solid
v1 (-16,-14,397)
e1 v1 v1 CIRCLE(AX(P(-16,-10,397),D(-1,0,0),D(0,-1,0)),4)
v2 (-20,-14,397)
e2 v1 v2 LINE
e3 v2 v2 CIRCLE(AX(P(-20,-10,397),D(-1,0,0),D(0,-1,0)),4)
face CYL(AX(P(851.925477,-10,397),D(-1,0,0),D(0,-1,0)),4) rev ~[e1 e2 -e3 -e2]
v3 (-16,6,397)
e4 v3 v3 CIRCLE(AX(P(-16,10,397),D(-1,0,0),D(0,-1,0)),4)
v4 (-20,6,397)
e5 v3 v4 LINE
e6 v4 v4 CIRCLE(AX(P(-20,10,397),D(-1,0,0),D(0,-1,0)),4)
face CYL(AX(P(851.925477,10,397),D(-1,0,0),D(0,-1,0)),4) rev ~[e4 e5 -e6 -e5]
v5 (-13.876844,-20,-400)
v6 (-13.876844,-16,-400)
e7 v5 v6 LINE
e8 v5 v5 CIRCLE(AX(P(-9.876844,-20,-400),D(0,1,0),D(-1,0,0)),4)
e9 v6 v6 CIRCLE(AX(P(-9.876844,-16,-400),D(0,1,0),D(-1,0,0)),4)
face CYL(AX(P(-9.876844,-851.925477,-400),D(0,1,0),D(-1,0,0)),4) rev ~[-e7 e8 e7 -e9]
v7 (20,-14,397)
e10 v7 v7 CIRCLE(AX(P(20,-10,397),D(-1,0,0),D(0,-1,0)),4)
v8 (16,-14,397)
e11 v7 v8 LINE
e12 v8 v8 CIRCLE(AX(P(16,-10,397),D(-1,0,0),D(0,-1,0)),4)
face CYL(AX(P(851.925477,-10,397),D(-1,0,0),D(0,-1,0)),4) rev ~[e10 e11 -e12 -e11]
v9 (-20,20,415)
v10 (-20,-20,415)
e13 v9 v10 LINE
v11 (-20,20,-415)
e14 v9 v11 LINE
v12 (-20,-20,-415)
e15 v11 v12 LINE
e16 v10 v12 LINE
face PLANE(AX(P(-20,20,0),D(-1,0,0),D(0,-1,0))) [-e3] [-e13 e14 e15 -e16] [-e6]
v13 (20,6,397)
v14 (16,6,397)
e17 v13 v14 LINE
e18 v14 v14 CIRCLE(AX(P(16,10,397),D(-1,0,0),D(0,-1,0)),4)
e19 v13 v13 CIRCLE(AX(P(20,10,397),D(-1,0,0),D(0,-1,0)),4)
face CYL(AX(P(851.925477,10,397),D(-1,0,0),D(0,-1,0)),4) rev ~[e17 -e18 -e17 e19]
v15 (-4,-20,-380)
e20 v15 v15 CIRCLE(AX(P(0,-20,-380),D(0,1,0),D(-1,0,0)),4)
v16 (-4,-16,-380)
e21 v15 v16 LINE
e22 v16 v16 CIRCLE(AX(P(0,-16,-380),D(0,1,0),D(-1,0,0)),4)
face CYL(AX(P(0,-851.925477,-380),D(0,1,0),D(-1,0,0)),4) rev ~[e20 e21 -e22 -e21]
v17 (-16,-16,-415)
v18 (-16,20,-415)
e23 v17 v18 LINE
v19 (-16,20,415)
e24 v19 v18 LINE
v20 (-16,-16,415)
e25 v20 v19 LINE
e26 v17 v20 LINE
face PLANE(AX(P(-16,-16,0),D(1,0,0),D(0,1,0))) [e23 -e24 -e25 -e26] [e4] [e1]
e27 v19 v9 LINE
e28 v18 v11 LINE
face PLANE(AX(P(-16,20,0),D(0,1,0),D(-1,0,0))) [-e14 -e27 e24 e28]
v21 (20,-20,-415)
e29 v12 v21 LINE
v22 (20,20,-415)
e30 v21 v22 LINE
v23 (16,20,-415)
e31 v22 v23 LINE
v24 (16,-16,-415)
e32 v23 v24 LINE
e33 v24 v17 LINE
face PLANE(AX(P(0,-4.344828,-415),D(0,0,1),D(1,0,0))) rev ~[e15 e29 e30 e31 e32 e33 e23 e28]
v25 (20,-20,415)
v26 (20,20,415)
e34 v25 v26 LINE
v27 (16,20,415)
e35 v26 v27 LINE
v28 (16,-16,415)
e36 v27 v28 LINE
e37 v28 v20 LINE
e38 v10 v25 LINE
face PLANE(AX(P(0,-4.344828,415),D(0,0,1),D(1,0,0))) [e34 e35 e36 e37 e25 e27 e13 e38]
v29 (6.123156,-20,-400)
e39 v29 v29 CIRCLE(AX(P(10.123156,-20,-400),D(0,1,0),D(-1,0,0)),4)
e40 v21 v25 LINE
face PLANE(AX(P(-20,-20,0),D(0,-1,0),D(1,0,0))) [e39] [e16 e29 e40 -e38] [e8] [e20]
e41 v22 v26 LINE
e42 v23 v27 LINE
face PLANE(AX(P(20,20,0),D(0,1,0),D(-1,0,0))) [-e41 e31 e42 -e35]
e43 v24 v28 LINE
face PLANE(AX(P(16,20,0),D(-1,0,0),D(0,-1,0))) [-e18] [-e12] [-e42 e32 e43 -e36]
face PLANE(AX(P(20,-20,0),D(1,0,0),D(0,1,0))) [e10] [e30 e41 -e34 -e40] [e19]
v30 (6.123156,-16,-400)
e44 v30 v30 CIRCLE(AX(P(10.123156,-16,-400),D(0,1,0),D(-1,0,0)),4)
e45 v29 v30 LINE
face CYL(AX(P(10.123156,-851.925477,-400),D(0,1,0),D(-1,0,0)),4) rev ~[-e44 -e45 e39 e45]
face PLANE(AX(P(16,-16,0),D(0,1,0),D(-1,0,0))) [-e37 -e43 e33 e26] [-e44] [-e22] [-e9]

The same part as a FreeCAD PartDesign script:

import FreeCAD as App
import Part
import Sketcher
from FreeCAD import Vector

doc = App.newDocument("Part")
body = doc.addObject("PartDesign::Body", "Body")

sketch1 = doc.addObject("Sketcher::SketchObject", "Sketch")
body.addObject(sketch1)
sketch1.AttachmentSupport = (doc.XY_Plane, [""])
sketch1.MapMode = "FlatFace"
sketch1.addGeometry([
    Part.LineSegment(Vector(-20, -20, 0), Vector(20, -20, 0)),
    Part.LineSegment(Vector(20, -20, 0), Vector(20, 20, 0)),
    Part.LineSegment(Vector(20, 20, 0), Vector(16, 20, 0)),
    Part.LineSegment(Vector(16, 20, 0), Vector(16, -16, 0)),
    Part.LineSegment(Vector(16, -16, 0), Vector(-16, -16, 0)),
    Part.LineSegment(Vector(-16, -16, 0), Vector(-16, 20, 0)),
    Part.LineSegment(Vector(-16, 20, 0), Vector(-20, 20, 0)),
    Part.LineSegment(Vector(-20, 20, 0), Vector(-20, -20, 0)),
], False)
sketch1.addConstraint([
    Sketcher.Constraint("Coincident", 0, 2, 1, 1),
    Sketcher.Constraint("Coincident", 1, 2, 2, 1),
    Sketcher.Constraint("Coincident", 2, 2, 3, 1),
    Sketcher.Constraint("Coincident", 3, 2, 4, 1),
    Sketcher.Constraint("Coincident", 4, 2, 5, 1),
    Sketcher.Constraint("Coincident", 5, 2, 6, 1),
    Sketcher.Constraint("Coincident", 6, 2, 7, 1),
    Sketcher.Constraint("Coincident", 7, 2, 0, 1),
    Sketcher.Constraint("Horizontal", 0),
    Sketcher.Constraint("Vertical", 1),
    Sketcher.Constraint("Horizontal", 2),
    Sketcher.Constraint("Vertical", 3),
    Sketcher.Constraint("Horizontal", 4),
    Sketcher.Constraint("Vertical", 5),
    Sketcher.Constraint("Horizontal", 6),
    Sketcher.Constraint("Vertical", 7),
    Sketcher.Constraint("Symmetric", 0, 2, 6, 2, -1, 1),
    Sketcher.Constraint("Symmetric", 2, 2, 5, 2, -2),
    Sketcher.Constraint("Equal", 0, 1),
    Sketcher.Constraint("DistanceX", 0, 1, 0, 2, 40.0),
    Sketcher.Constraint("DistanceX", 2, 2, 2, 1, 4.0),
    Sketcher.Constraint("DistanceY", 3, 2, 3, 1, 36.0),
])
pad1 = doc.addObject("PartDesign::Pad", "Pad")
body.addObject(pad1)
pad1.Profile = sketch1
pad1.Length = 830
pad1.Midplane = True

sketch2 = doc.addObject("Sketcher::SketchObject", "Sketch001")
body.addObject(sketch2)
sketch2.AttachmentSupport = (doc.YZ_Plane, [""])
sketch2.MapMode = "FlatFace"
sketch2.AttachmentOffset = App.Placement(Vector(0, 0, 20), App.Rotation())
sketch2.addGeometry([
    Part.Circle(Vector(-10, 397, 0), Vector(0, 0, 1), 4),
    Part.Circle(Vector(10, 397, 0), Vector(0, 0, 1), 4),
], False)
sketch2.addConstraint([
    Sketcher.Constraint("Equal", 0, 1),
    Sketcher.Constraint("Symmetric", 0, 3, 1, 3, -2),
    Sketcher.Constraint("Diameter", 0, 8.0),
    Sketcher.Constraint("DistanceX", 0, 3, -1, 1, 10.0),
    Sketcher.Constraint("DistanceY", -1, 1, 0, 3, 397.0),
])
doc.recompute()
hole = doc.addObject("PartDesign::Hole", "Hole")
body.addObject(hole)
hole.Profile = sketch2
hole.ThreadType = "None"
hole.Diameter = 8
hole.DepthType = "ThroughAll"

sketch3 = doc.addObject("Sketcher::SketchObject", "Sketch002")
body.addObject(sketch3)
sketch3.AttachmentSupport = (doc.XZ_Plane, [""])
sketch3.MapMode = "FlatFace"
sketch3.AttachmentOffset = App.Placement(Vector(0, 0, 20), App.Rotation())
sketch3.addGeometry([
    Part.Circle(Vector(0, -380, 0), Vector(0, 0, 1), 4),
    Part.Circle(Vector(10.1, -400, 0), Vector(0, 0, 1), 4),
    Part.Circle(Vector(-9.9, -400, 0), Vector(0, 0, 1), 4),
], False)
sketch3.addConstraint([
    Sketcher.Constraint("Equal", 0, 1),
    Sketcher.Constraint("Equal", 1, 2),
    Sketcher.Constraint("PointOnObject", 0, 3, -2),
    Sketcher.Constraint("Horizontal", 1, 3, 2, 3),
    Sketcher.Constraint("Diameter", 0, 8.0),
    Sketcher.Constraint("DistanceY", 0, 3, -1, 1, 380.0),
    Sketcher.Constraint("DistanceY", 1, 3, -1, 1, 400.0),
    Sketcher.Constraint("DistanceX", 2, 3, 1, 3, 20.0),
    Sketcher.Constraint("DistanceX", -1, 1, 1, 3, 10.123156),
])
doc.recompute()
hole2 = doc.addObject("PartDesign::Hole", "Hole001")
body.addObject(hole2)
hole2.Profile = sketch3
hole2.ThreadType = "None"
hole2.Diameter = 8
hole2.DepthType = "ThroughAll"

doc.recompute()
